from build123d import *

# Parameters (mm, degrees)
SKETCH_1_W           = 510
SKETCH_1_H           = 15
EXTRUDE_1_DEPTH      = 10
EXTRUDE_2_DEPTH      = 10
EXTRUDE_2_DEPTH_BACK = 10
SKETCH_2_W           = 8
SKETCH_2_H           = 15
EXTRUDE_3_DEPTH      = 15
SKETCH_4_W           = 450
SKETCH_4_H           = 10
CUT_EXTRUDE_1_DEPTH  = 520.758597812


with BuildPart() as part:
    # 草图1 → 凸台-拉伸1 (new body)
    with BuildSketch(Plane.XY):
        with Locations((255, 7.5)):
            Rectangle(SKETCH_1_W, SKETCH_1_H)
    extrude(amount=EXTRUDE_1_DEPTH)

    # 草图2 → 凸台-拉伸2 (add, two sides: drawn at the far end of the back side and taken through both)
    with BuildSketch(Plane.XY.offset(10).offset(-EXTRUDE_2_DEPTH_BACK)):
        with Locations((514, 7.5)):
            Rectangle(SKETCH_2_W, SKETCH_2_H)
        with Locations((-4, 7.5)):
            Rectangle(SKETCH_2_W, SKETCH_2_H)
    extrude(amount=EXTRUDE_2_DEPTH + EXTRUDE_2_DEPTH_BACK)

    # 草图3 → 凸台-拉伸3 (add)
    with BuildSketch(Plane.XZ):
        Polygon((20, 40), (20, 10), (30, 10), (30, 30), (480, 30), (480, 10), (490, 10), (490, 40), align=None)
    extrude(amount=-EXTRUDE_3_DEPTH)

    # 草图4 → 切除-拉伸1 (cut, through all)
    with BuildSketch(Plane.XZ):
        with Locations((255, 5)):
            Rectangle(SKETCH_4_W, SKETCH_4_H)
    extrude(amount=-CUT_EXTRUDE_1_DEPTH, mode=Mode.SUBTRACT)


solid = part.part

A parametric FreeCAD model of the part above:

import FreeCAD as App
import Part
import Sketcher
from FreeCAD import Vector
Q = App.Units.Quantity

doc = App.newDocument("Part")
body = doc.addObject("PartDesign::Body", "Body")

sketch1 = doc.addObject("Sketcher::SketchObject", "Sketch")
body.addObject(sketch1)
sketch1.AttachmentSupport = (doc.XY_Plane, [""])
sketch1.MapMode = "FlatFace"
sketch1.addGeometry(Part.LineSegment(Vector(0, 15, 0), Vector(0, 0, 0)), False)
sketch1.addGeometry(Part.LineSegment(Vector(0, 0, 0), Vector(510, 0, 0)), False)
sketch1.addGeometry(Part.LineSegment(Vector(510, 0, 0), Vector(510, 15, 0)), False)
sketch1.addGeometry(Part.LineSegment(Vector(510, 15, 0), Vector(0, 15, 0)), False)
sketch1.addConstraint(Sketcher.Constraint("Coincident", 0, 2, 1, 1))
sketch1.addConstraint(Sketcher.Constraint("Coincident", 1, 2, 2, 1))
sketch1.addConstraint(Sketcher.Constraint("Coincident", 2, 2, 3, 1))
sketch1.addConstraint(Sketcher.Constraint("Coincident", 3, 2, 0, 1))
sketch1.addConstraint(Sketcher.Constraint("Vertical", 0))
sketch1.addConstraint(Sketcher.Constraint("Horizontal", 1))
sketch1.addConstraint(Sketcher.Constraint("Vertical", 2))
sketch1.addConstraint(Sketcher.Constraint("Horizontal", 3))
sketch1.addConstraint(Sketcher.Constraint("Coincident", 0, 2, -1, 1))
sketch1.addConstraint(Sketcher.Constraint("DistanceX", 1, 1, 1, 2, Q("510 mm")))
sketch1.addConstraint(Sketcher.Constraint("DistanceY", 0, 2, 0, 1, Q("15 mm")))
pad1 = doc.addObject("PartDesign::Pad", "Pad")
body.addObject(pad1)
pad1.Profile = sketch1
pad1.Length = 10

sketch2 = doc.addObject("Sketcher::SketchObject", "Sketch001")
body.addObject(sketch2)
sketch2.AttachmentSupport = (doc.XY_Plane, [""])
sketch2.MapMode = "FlatFace"
sketch2.AttachmentOffset = App.Placement(Vector(0, 0, 10), App.Rotation())
sketch2.addGeometry(Part.LineSegment(Vector(510, 15, 0), Vector(510, 0, 0)), False)
sketch2.addGeometry(Part.LineSegment(Vector(510, 0, 0), Vector(518, 0, 0)), False)
sketch2.addGeometry(Part.LineSegment(Vector(518, 0, 0), Vector(518, 15, 0)), False)
sketch2.addGeometry(Part.LineSegment(Vector(518, 15, 0), Vector(510, 15, 0)), False)
sketch2.addGeometry(Part.LineSegment(Vector(-8, 15, 0), Vector(-8, 0, 0)), False)
sketch2.addGeometry(Part.LineSegment(Vector(-8, 0, 0), Vector(0, 0, 0)), False)
sketch2.addGeometry(Part.LineSegment(Vector(0, 0, 0), Vector(0, 15, 0)), False)
sketch2.addGeometry(Part.LineSegment(Vector(0, 15, 0), Vector(-8, 15, 0)), False)
sketch2.addConstraint(Sketcher.Constraint("Coincident", 0, 2, 1, 1))
sketch2.addConstraint(Sketcher.Constraint("Coincident", 1, 2, 2, 1))
sketch2.addConstraint(Sketcher.Constraint("Coincident", 2, 2, 3, 1))
sketch2.addConstraint(Sketcher.Constraint("Coincident", 3, 2, 0, 1))
sketch2.addConstraint(Sketcher.Constraint("Coincident", 4, 2, 5, 1))
sketch2.addConstraint(Sketcher.Constraint("Coincident", 5, 2, 6, 1))
sketch2.addConstraint(Sketcher.Constraint("Coincident", 6, 2, 7, 1))
sketch2.addConstraint(Sketcher.Constraint("Coincident", 7, 2, 4, 1))
sketch2.addConstraint(Sketcher.Constraint("Vertical", 0))
sketch2.addConstraint(Sketcher.Constraint("Horizontal", 1))
sketch2.addConstraint(Sketcher.Constraint("Vertical", 2))
sketch2.addConstraint(Sketcher.Constraint("Horizontal", 3))
sketch2.addConstraint(Sketcher.Constraint("Vertical", 4))
sketch2.addConstraint(Sketcher.Constraint("Horizontal", 5))
sketch2.addConstraint(Sketcher.Constraint("Vertical", 6))
sketch2.addConstraint(Sketcher.Constraint("Horizontal", 7))
sketch2.addConstraint(Sketcher.Constraint("Coincident", 5, 2, -1, 1))
sketch2.addConstraint(Sketcher.Constraint("PointOnObject", 0, 2, -1))
sketch2.addConstraint(Sketcher.Constraint("Horizontal", 3, 2, 6, 2))
sketch2.addConstraint(Sketcher.Constraint("Equal", 3, 5))
sketch2.addConstraint(Sketcher.Constraint("DistanceX", 1, 1, 1, 2, Q("8 mm")))
sketch2.addConstraint(Sketcher.Constraint("DistanceY", 0, 2, 0, 1, Q("15 mm")))
sketch2.addConstraint(Sketcher.Constraint("DistanceX", -1, 1, 0, 2, Q("510 mm")))
pad2 = doc.addObject("PartDesign::Pad", "Pad001")
body.addObject(pad2)
pad2.Profile = sketch2
pad2.Type = "TwoLengths"
pad2.Length = 10
pad2.Length2 = 10

sketch3 = doc.addObject("Sketcher::SketchObject", "Sketch002")
body.addObject(sketch3)
sketch3.AttachmentSupport = (doc.XZ_Plane, [""])
sketch3.MapMode = "FlatFace"
sketch3.addGeometry(Part.LineSegment(Vector(20, 40, 0), Vector(20, 10, 0)), False)
sketch3.addGeometry(Part.LineSegment(Vector(20, 10, 0), Vector(30, 10, 0)), False)
sketch3.addGeometry(Part.LineSegment(Vector(30, 10, 0), Vector(30, 30, 0)), False)
sketch3.addGeometry(Part.LineSegment(Vector(30, 30, 0), Vector(480, 30, 0)), False)
sketch3.addGeometry(Part.LineSegment(Vector(480, 30, 0), Vector(480, 10, 0)), False)
sketch3.addGeometry(Part.LineSegment(Vector(480, 10, 0), Vector(490, 10, 0)), False)
sketch3.addGeometry(Part.LineSegment(Vector(490, 10, 0), Vector(490, 40, 0)), False)
sketch3.addGeometry(Part.LineSegment(Vector(490, 40, 0), Vector(20, 40, 0)), False)
sketch3.addConstraint(Sketcher.Constraint("Coincident", 0, 2, 1, 1))
sketch3.addConstraint(Sketcher.Constraint("Coincident", 1, 2, 2, 1))
sketch3.addConstraint(Sketcher.Constraint("Coincident", 2, 2, 3, 1))
sketch3.addConstraint(Sketcher.Constraint("Coincident", 3, 2, 4, 1))
sketch3.addConstraint(Sketcher.Constraint("Coincident", 4, 2, 5, 1))
sketch3.addConstraint(Sketcher.Constraint("Coincident", 5, 2, 6, 1))
sketch3.addConstraint(Sketcher.Constraint("Coincident", 6, 2, 7, 1))
sketch3.addConstraint(Sketcher.Constraint("Coincident", 7, 2, 0, 1))
sketch3.addConstraint(Sketcher.Constraint("Vertical", 0))
sketch3.addConstraint(Sketcher.Constraint("Horizontal", 1))
sketch3.addConstraint(Sketcher.Constraint("Vertical", 2))
sketch3.addConstraint(Sketcher.Constraint("Horizontal", 3))
sketch3.addConstraint(Sketcher.Constraint("Vertical", 4))
sketch3.addConstraint(Sketcher.Constraint("Horizontal", 5))
sketch3.addConstraint(Sketcher.Constraint("Vertical", 6))
sketch3.addConstraint(Sketcher.Constraint("Horizontal", 7))
sketch3.addConstraint(Sketcher.Constraint("Horizontal", 1, 2, 4, 2))
sketch3.addConstraint(Sketcher.Constraint("Equal", 1, 5))
sketch3.addConstraint(Sketcher.Constraint("DistanceX", 1, 1, 1, 2, Q("10 mm")))
sketch3.addConstraint(Sketcher.Constraint("DistanceX", 3, 1, 3, 2, Q("450 mm")))
sketch3.addConstraint(Sketcher.Constraint("DistanceY", 0, 2, 0, 1, Q("30 mm")))
sketch3.addConstraint(Sketcher.Constraint("DistanceY", 2, 1, 2, 2, Q("20 mm")))
sketch3.addConstraint(Sketcher.Constraint("DistanceX", -1, 1, 0, 2, Q("20 mm")))
sketch3.addConstraint(Sketcher.Constraint("DistanceY", -1, 1, 0, 2, Q("10 mm")))
pad3 = doc.addObject("PartDesign::Pad", "Pad002")
body.addObject(pad3)
pad3.Profile = sketch3
pad3.Length = 15
pad3.Reversed = True

sketch4 = doc.addObject("Sketcher::SketchObject", "Sketch003")
body.addObject(sketch4)
sketch4.AttachmentSupport = (doc.XZ_Plane, [""])
sketch4.MapMode = "FlatFace"
sketch4.addGeometry(Part.LineSegment(Vector(30, 10, 0), Vector(30, 0, 0)), False)
sketch4.addGeometry(Part.LineSegment(Vector(30, 0, 0), Vector(480, 0, 0)), False)
sketch4.addGeometry(Part.LineSegment(Vector(480, 0, 0), Vector(480, 10, 0)), False)
sketch4.addGeometry(Part.LineSegment(Vector(480, 10, 0), Vector(30, 10, 0)), False)
sketch4.addConstraint(Sketcher.Constraint("Coincident", 0, 2, 1, 1))
sketch4.addConstraint(Sketcher.Constraint("Coincident", 1, 2, 2, 1))
sketch4.addConstraint(Sketcher.Constraint("Coincident", 2, 2, 3, 1))
sketch4.addConstraint(Sketcher.Constraint("Coincident", 3, 2, 0, 1))
sketch4.addConstraint(Sketcher.Constraint("Vertical", 0))
sketch4.addConstraint(Sketcher.Constraint("Horizontal", 1))
sketch4.addConstraint(Sketcher.Constraint("Vertical", 2))
sketch4.addConstraint(Sketcher.Constraint("Horizontal", 3))
sketch4.addConstraint(Sketcher.Constraint("PointOnObject", 0, 2, -1))
sketch4.addConstraint(Sketcher.Constraint("DistanceX", 1, 1, 1, 2, Q("450 mm")))
sketch4.addConstraint(Sketcher.Constraint("DistanceY", 0, 2, 0, 1, Q("10 mm")))
sketch4.addConstraint(Sketcher.Constraint("DistanceX", -1, 1, 0, 2, Q("30 mm")))
pocket1 = doc.addObject("PartDesign::Pocket", "Pocket")
body.addObject(pocket1)
pocket1.Profile = sketch4
pocket1.Type = "ThroughAll"

doc.recompute()
